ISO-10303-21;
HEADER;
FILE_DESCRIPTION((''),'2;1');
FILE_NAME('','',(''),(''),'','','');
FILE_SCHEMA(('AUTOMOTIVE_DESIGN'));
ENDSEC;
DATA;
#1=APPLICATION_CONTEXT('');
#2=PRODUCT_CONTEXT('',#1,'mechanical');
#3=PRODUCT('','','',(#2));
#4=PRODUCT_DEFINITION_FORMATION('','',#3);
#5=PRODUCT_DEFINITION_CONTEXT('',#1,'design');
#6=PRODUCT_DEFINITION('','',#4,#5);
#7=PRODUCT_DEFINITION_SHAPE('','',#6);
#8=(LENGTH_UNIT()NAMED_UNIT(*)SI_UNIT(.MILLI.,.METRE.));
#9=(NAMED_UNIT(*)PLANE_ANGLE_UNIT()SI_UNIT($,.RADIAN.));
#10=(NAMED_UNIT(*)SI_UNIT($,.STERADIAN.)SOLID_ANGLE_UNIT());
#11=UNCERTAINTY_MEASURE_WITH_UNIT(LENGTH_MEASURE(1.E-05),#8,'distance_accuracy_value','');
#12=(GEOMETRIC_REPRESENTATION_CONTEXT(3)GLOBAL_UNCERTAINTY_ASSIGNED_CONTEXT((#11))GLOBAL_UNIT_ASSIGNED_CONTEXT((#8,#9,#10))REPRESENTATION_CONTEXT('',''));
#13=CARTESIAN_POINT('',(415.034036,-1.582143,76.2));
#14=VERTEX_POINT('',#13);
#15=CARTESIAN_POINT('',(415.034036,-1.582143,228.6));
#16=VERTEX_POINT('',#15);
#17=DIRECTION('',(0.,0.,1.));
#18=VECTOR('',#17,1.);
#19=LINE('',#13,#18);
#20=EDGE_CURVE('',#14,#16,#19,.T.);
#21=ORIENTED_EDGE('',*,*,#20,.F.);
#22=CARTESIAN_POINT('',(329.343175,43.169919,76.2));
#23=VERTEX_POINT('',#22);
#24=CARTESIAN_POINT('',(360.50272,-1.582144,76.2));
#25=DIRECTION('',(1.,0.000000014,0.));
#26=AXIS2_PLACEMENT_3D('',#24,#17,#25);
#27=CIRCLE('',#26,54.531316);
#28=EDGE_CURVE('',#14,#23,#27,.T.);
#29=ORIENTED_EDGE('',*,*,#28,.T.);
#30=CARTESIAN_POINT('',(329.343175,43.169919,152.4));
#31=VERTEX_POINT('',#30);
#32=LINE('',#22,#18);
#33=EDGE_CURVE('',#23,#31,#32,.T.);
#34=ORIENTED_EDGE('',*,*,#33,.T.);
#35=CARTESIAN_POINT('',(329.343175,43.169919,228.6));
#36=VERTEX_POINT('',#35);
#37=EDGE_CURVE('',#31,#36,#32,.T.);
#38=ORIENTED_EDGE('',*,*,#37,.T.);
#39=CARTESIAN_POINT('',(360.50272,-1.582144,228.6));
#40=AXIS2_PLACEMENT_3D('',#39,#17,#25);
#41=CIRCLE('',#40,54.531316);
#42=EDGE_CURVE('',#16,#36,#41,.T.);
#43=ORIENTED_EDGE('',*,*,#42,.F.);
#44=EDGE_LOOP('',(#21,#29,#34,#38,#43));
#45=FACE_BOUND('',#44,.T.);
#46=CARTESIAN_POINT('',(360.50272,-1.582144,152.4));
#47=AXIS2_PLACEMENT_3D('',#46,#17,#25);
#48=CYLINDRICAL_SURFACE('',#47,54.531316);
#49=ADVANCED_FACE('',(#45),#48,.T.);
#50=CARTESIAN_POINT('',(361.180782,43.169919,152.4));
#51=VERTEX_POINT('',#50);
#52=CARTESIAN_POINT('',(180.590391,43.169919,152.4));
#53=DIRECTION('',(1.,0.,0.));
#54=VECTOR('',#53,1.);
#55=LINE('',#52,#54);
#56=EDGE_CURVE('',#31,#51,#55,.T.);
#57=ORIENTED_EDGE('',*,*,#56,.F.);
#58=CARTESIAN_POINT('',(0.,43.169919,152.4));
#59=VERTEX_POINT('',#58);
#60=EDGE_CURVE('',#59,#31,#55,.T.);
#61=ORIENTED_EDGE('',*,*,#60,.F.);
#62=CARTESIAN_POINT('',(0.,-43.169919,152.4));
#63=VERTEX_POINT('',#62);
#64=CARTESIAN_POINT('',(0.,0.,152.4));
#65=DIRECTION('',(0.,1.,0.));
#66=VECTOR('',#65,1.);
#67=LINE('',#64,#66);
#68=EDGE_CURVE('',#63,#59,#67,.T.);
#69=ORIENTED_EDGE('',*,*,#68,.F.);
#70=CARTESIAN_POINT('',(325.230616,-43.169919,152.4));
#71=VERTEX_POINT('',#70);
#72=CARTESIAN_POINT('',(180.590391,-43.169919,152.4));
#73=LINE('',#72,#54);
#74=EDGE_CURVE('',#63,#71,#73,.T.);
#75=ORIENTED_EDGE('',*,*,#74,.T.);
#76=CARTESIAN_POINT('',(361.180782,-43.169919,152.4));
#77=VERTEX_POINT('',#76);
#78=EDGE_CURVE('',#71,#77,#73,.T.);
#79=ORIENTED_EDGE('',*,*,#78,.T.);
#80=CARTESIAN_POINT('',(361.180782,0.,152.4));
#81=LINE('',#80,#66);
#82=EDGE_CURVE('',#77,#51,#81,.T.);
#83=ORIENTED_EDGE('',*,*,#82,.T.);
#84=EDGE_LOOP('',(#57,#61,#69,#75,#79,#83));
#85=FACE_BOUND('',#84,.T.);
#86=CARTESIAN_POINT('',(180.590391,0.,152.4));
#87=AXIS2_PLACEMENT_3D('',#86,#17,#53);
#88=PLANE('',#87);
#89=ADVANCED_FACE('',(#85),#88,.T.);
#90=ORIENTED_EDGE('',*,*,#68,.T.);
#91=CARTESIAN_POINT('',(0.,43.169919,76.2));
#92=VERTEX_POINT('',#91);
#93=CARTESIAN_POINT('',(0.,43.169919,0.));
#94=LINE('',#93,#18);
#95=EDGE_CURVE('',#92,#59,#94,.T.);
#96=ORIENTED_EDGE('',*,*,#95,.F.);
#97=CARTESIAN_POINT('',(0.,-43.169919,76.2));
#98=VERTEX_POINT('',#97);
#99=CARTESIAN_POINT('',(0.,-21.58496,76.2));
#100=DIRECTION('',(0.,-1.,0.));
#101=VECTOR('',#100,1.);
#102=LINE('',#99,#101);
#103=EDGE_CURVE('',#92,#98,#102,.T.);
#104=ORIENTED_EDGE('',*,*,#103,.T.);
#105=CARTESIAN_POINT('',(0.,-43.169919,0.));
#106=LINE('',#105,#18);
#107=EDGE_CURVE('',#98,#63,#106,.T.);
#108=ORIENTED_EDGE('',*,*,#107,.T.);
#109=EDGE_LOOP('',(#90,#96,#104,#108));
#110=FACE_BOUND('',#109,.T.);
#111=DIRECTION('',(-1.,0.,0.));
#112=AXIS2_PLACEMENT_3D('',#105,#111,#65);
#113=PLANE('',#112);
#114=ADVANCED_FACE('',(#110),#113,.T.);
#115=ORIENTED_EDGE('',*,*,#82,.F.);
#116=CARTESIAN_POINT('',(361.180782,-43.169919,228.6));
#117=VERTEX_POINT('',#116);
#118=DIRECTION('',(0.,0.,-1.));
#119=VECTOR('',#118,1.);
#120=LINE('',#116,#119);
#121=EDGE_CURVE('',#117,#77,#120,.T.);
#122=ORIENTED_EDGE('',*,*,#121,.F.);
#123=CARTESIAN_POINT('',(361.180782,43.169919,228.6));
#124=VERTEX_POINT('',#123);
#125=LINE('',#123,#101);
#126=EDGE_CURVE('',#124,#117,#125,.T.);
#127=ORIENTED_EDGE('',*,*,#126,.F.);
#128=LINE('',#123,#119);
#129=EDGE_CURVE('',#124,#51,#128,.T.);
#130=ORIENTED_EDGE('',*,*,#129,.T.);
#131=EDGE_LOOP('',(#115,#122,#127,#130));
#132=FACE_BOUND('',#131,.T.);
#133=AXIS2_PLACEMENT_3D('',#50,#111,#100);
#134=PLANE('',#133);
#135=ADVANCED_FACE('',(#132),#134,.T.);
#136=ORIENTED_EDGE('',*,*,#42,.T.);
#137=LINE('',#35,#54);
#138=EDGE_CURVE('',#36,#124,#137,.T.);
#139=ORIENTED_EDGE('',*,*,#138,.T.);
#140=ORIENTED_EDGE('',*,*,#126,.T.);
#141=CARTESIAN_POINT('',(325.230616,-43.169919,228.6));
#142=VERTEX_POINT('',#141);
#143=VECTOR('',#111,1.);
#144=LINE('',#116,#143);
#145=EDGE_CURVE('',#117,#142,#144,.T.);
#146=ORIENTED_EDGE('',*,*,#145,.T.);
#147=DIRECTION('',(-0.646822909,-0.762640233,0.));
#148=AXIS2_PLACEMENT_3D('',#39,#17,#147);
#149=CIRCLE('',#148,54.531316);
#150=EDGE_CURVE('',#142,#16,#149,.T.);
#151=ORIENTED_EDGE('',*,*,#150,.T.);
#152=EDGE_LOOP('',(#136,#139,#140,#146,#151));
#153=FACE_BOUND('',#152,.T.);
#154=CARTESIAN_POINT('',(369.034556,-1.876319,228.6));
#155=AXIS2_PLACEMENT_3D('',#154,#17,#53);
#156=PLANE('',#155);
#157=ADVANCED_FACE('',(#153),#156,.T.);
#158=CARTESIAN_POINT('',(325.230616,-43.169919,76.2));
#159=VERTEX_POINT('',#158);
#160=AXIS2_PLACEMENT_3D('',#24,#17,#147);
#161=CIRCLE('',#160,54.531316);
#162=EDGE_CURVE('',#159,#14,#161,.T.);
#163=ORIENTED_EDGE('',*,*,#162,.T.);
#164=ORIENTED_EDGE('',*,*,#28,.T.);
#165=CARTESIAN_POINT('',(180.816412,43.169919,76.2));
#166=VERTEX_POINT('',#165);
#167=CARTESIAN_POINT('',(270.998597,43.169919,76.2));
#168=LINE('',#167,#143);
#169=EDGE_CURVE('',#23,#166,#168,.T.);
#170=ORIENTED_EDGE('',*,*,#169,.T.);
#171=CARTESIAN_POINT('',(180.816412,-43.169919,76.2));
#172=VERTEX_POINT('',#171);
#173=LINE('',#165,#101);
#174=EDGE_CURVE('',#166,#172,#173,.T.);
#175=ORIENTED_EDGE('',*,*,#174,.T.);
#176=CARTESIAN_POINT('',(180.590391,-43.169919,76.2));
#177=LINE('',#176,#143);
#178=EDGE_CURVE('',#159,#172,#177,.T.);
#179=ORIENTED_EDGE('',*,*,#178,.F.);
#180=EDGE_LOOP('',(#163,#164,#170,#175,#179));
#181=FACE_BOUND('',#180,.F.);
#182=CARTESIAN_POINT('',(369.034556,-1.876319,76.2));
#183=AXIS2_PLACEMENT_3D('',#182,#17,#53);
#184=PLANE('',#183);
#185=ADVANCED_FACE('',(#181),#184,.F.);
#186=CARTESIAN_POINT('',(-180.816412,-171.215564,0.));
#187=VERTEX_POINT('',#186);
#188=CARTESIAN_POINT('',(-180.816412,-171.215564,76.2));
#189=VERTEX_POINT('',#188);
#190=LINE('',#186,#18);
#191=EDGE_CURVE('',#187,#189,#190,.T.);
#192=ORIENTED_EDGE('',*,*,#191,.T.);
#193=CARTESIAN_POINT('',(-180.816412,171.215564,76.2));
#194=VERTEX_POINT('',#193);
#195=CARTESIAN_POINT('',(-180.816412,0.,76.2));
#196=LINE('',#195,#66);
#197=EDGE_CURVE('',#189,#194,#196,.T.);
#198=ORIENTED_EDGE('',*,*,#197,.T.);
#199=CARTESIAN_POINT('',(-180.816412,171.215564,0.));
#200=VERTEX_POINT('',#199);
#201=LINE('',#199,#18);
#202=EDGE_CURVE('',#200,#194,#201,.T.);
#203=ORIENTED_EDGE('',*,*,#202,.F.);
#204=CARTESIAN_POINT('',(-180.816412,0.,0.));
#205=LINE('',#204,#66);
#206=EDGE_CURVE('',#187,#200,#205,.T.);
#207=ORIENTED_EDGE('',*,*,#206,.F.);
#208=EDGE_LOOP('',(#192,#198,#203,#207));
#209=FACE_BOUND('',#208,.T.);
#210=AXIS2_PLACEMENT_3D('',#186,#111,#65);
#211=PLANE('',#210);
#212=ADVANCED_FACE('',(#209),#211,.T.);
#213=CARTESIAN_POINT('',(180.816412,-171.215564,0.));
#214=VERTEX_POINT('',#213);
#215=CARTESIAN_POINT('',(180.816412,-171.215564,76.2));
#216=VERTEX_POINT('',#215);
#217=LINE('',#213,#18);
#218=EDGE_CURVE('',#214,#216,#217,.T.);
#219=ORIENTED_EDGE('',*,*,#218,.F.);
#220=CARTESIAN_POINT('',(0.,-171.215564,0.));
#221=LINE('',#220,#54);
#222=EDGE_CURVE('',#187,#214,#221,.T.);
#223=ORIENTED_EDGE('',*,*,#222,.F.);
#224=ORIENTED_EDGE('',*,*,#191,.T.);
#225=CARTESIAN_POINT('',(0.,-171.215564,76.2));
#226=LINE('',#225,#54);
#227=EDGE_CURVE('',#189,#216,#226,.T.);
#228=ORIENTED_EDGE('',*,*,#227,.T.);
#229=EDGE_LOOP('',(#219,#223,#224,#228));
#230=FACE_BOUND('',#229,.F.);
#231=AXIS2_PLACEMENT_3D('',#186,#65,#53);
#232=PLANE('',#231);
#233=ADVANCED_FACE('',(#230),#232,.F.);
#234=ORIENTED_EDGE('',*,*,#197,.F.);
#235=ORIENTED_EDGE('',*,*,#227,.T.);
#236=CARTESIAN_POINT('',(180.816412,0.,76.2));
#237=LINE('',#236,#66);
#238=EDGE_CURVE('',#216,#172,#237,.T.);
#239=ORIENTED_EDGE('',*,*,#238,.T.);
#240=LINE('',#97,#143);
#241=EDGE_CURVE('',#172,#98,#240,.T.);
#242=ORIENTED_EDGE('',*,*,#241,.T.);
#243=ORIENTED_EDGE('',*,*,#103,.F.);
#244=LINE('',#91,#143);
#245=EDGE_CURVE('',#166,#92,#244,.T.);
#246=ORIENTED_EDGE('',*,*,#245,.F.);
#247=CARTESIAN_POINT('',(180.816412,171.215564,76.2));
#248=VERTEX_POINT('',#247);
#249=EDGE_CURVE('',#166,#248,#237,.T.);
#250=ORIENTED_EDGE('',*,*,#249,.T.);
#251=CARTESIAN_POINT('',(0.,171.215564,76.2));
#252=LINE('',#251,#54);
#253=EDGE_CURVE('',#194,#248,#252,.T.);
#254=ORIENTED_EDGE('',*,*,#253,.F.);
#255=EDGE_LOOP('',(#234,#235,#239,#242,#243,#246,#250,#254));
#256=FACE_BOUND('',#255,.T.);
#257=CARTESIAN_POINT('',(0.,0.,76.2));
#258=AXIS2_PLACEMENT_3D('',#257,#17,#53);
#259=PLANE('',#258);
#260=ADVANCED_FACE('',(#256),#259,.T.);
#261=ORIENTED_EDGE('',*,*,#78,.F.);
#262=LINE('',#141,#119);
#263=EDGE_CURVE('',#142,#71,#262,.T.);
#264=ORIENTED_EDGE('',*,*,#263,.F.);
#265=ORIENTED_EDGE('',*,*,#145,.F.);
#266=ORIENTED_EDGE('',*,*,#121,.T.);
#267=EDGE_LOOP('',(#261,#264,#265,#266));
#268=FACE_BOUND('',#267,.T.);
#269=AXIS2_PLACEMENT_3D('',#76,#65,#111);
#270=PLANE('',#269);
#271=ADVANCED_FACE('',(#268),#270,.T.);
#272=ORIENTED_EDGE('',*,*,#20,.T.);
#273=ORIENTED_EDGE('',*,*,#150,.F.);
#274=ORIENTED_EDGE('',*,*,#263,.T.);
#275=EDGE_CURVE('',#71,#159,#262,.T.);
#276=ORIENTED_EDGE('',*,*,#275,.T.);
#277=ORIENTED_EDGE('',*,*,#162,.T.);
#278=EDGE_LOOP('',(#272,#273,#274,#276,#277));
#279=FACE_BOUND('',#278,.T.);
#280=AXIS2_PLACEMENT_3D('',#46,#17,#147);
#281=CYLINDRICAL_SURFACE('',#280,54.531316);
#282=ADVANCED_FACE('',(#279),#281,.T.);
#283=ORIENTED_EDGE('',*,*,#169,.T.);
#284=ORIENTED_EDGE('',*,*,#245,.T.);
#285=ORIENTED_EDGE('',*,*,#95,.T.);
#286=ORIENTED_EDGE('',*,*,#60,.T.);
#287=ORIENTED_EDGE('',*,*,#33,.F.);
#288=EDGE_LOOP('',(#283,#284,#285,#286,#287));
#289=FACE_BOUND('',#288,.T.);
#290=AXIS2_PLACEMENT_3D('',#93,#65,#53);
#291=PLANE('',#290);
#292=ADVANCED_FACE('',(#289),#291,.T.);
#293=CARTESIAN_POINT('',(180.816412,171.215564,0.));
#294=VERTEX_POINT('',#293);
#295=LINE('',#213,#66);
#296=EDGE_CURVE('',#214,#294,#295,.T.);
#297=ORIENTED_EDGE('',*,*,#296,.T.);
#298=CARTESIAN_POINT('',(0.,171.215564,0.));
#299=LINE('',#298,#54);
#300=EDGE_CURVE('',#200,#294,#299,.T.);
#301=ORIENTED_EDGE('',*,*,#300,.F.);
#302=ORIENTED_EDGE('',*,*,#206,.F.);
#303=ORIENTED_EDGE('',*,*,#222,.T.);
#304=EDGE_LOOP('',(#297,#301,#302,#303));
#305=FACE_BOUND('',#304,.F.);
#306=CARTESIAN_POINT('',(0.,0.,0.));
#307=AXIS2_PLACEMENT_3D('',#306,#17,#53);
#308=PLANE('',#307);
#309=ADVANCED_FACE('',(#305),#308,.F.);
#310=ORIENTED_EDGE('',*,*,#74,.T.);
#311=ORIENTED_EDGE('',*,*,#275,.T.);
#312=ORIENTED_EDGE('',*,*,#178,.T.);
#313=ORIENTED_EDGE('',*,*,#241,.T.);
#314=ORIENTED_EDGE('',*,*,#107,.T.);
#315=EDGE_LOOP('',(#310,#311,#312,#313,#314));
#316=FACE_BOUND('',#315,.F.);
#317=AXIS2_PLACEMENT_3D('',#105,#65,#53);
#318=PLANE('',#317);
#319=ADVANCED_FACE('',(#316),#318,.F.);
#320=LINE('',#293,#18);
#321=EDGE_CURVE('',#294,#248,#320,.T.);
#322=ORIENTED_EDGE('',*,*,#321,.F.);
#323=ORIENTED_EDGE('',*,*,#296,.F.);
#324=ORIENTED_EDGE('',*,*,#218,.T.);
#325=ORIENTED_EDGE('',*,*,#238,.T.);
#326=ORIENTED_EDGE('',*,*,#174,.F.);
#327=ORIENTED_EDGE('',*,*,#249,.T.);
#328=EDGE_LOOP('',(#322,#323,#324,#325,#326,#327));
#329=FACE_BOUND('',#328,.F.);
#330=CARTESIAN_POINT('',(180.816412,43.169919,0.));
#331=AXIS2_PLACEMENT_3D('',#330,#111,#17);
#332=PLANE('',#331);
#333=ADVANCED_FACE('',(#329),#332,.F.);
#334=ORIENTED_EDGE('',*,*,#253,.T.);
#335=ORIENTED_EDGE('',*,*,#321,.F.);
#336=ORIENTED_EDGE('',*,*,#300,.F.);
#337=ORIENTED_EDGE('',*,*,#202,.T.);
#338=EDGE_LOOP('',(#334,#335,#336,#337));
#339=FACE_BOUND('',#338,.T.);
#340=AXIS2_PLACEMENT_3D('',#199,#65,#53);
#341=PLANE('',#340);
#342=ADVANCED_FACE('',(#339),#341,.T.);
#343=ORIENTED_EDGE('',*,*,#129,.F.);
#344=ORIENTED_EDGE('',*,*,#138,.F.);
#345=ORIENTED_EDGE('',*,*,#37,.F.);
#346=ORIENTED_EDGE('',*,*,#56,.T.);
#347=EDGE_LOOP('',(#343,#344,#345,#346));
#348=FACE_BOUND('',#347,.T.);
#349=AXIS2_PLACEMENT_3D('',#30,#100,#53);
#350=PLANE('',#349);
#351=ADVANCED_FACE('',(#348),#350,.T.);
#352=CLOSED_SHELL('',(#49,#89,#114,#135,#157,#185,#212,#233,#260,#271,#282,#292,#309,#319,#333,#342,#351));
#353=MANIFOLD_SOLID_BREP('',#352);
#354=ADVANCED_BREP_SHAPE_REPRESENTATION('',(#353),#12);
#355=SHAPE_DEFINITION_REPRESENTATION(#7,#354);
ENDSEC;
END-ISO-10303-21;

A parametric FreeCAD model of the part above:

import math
import FreeCAD as App
import Part
import Sketcher
from FreeCAD import Vector
Q = App.Units.Quantity


def add_polygon(sketch, points):
    """Adds a closed chain of lines whose ends are joined by coincident constraints."""
    first, n = sketch.GeometryCount, len(points)
    for a, b in zip(points, points[1:] + points[:1]):
        sketch.addGeometry(Part.LineSegment(App.Vector(*a, 0), App.Vector(*b, 0)), False)
    for i in range(n):
        sketch.addConstraint(Sketcher.Constraint("Coincident", first + i, 2, first + (i + 1) % n, 1))

doc = App.newDocument("Part")
body = doc.addObject("PartDesign::Body", "Body")

# Sketch on XY plane
sketch1 = body.newObject("Sketcher::SketchObject", "Sketch")
sketch1.AttachmentSupport = (doc.getObject("XY_Plane"), [""])
sketch1.MapMode = "FlatFace"
add_polygon(sketch1, [(-180.816412, 171.215564), (-180.816412, -171.215564), (180.816412, -171.215564), (180.816412, 171.215564)])  # lines 0-3
sketch1.addConstraint([
    Sketcher.Constraint("Vertical", 0),
    Sketcher.Constraint("Horizontal", 1),
    Sketcher.Constraint("Vertical", 2),
    Sketcher.Constraint("Horizontal", 3),
    Sketcher.Constraint("Symmetric", 0, 2, 2, 2, -1, 1),
    Sketcher.Constraint("DistanceY", 0, 2, 0, 1, 342.431128),
    Sketcher.Constraint("DistanceX", 1, 1, 1, 2, 361.632824),
])
pad1 = body.newObject("PartDesign::Pad", "Pad")
pad1.Profile = sketch1
pad1.Length = Q("3 in")

# Sketch on XY plane
sketch2 = body.newObject("Sketcher::SketchObject", "Sketch001")
sketch2.AttachmentSupport = (doc.getObject("XY_Plane"), [""])
sketch2.MapMode = "FlatFace"
add_polygon(sketch2, [(0, 43.169919), (0, -43.169919), (361.180782, -43.169919), (361.180782, 43.169919)])  # lines 0-3
sketch2.addConstraint([
    Sketcher.Constraint("Vertical", 0),
    Sketcher.Constraint("Horizontal", 1),
    Sketcher.Constraint("Vertical", 2),
    Sketcher.Constraint("Horizontal", 3),
    Sketcher.Constraint("Symmetric", 0, 2, 3, 2, -1, 1),
    Sketcher.Constraint("DistanceX", 1, 1, 1, 2, 361.180782),
    Sketcher.Constraint("DistanceY", 0, 2, 0, 1, 86.339838),
])
pad2 = body.newObject("PartDesign::Pad", "Pad001")
pad2.Profile = sketch2
pad2.Length = Q("6 in")

# Sketch on XY plane
sketch3 = body.newObject("Sketcher::SketchObject", "Sketch002")
sketch3.AttachmentSupport = (doc.getObject("XY_Plane"), [""])
sketch3.MapMode = "FlatFace"
sketch3.AttachmentOffset = App.Placement(Vector(0, 0, 6 * 25.4), App.Rotation())
sketch3.addGeometry([
    Part.ArcOfCircle(Part.Circle(Vector(360.50272, -1.582144, 0), Vector(0, 0, 1), 54.531316), math.radians(-130.302489), math.radians(0.000001)),  # 0
    Part.ArcOfCircle(Part.Circle(Vector(360.50272, -1.582144, 0), Vector(0, 0, 1), 54.531316), math.radians(0.000001), math.radians(124.84836)),  # 1
    Part.LineSegment(Vector(329.343175, 43.169919, 0), Vector(361.180782, 43.169919, 0)),  # 2
    Part.LineSegment(Vector(361.180782, 43.169919, 0), Vector(361.180782, -43.169919, 0)),  # 3
    Part.LineSegment(Vector(361.180782, -43.169919, 0), Vector(325.230616, -43.169919, 0)),  # 4
], False)
sketch3.addConstraint([
    Sketcher.Constraint("Tangent", 0, 2, 1, 1),
    Sketcher.Constraint("Coincident", 1, 2, 2, 1),
    Sketcher.Constraint("Coincident", 2, 2, 3, 1),
    Sketcher.Constraint("Coincident", 3, 2, 4, 1),
    Sketcher.Constraint("Coincident", 4, 2, 0, 1),
    Sketcher.Constraint("Horizontal", 2),
    Sketcher.Constraint("Vertical", 3),
    Sketcher.Constraint("Horizontal", 4),
    Sketcher.Constraint("Equal", 0, 1),
    Sketcher.Constraint("Horizontal", 1, 3, 0, 2),
    Sketcher.Constraint("Radius", 0, 54.531316),
    Sketcher.Constraint("DistanceY", 3, 2, 3, 1, 86.339838),
    Sketcher.Constraint("DistanceX", 2, 1, 2, 2, 31.837607),
    Sketcher.Constraint("DistanceX", 4, 2, 4, 1, 35.950166),
    Sketcher.Constraint("DistanceX", -1, 1, 0, 3, 360.50272),
    Sketcher.Constraint("DistanceY", -1, 1, 1, 2, 43.169919),
])
pad3 = body.newObject("PartDesign::Pad", "Pad002")
pad3.Profile = sketch3
pad3.Length = Q("6 in")
pad3.Midplane = True

# Sketch on XZ plane
sketch4 = body.newObject("Sketcher::SketchObject", "Sketch003")
sketch4.AttachmentSupport = (doc.getObject("XZ_Plane"), [""])
sketch4.MapMode = "FlatFace"
sketch4.AttachmentOffset = App.Placement(Vector(0, 0, -43.169919), App.Rotation())
add_polygon(sketch4, [(361.180782, 76.2), (361.180782, 0), (180.816412, 0), (180.816412, 76.2)])  # lines 0-3
sketch4.addConstraint([
    Sketcher.Constraint("Vertical", 0),
    Sketcher.Constraint("Horizontal", 1),
    Sketcher.Constraint("Vertical", 2),
    Sketcher.Constraint("Horizontal", 3),
    Sketcher.Constraint("PointOnObject", 0, 2, -1),
    Sketcher.Constraint("DistanceY", 0, 2, 0, 1, Q("3 in")),
    Sketcher.Constraint("DistanceX", 1, 2, 1, 1, 180.36437),
    Sketcher.Constraint("DistanceX", -1, 1, 0, 2, 361.180782),
])
pocket1 = body.newObject("PartDesign::Pocket", "Pocket")
pocket1.Profile = sketch4
pocket1.Type = "ThroughAll"
pocket1.Reversed = True

doc.recompute()
